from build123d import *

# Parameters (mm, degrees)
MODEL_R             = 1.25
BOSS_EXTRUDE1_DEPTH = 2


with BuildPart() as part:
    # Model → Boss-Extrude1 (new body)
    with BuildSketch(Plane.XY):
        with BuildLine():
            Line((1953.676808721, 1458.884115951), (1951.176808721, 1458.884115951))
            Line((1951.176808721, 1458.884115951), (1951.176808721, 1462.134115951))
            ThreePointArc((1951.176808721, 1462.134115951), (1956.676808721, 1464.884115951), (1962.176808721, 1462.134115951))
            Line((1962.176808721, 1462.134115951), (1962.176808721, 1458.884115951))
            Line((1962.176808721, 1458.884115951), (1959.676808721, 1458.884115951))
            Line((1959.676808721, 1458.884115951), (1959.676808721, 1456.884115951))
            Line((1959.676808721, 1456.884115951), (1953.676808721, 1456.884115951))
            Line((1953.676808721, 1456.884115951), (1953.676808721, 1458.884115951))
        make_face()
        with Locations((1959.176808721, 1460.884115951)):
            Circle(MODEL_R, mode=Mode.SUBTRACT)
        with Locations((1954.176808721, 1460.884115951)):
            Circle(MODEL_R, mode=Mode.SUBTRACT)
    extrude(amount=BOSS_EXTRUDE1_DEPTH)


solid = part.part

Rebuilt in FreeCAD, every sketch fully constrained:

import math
import FreeCAD as App
import Part
import Sketcher
Q = App.Units.Quantity

doc = App.newDocument("Part")
params = doc.addObject("Spreadsheet::Sheet", "Params")
for row, (alias, value) in enumerate([
    ("sketch1_diameter", "2.5 mm"),
    ("sketch1_width", "6 mm"),
    ("sketch1_height", "2 mm"),
    ("sketch1_width2", "2.5 mm"),
    ("sketch1_height2", "3.25 mm"),
    ("pad1_length", "2 mm"),
], start=1):
    params.set(f"A{row}", alias)
    params.set(f"B{row}", "=" + value)
    params.setAlias(f"B{row}", alias)

body = doc.addObject("PartDesign::Body", "Body")

# Sketch on XY plane
sketch1 = doc.addObject("Sketcher::SketchObject", "Sketch")
body.addObject(sketch1)
sketch1.AttachmentSupport = (doc.XY_Plane, [""])
sketch1.MapMode = "FlatFace"
sketch1.addGeometry(Part.LineSegment(App.Vector(1951.2, 1458.9, 0), App.Vector(1953.7, 1458.9, 0)), False)
sketch1.addGeometry(Part.LineSegment(App.Vector(1953.7, 1458.9, 0), App.Vector(1953.7, 1456.9, 0)), False)
sketch1.addGeometry(Part.LineSegment(App.Vector(1953.7, 1456.9, 0), App.Vector(1959.7, 1456.9, 0)), False)
sketch1.addGeometry(Part.LineSegment(App.Vector(1959.7, 1456.9, 0), App.Vector(1959.7, 1458.9, 0)), False)
sketch1.addGeometry(Part.LineSegment(App.Vector(1959.7, 1458.9, 0), App.Vector(1962.2, 1458.9, 0)), False)
sketch1.addGeometry(Part.LineSegment(App.Vector(1962.2, 1458.9, 0), App.Vector(1962.2, 1462.1, 0)), False)
sketch1.addGeometry(Part.ArcOfCircle(Part.Circle(App.Vector(1956.7, 1458, 0), App.Vector(0, 0, 1), 6.9), math.radians(37), math.radians(143)), False)
sketch1.addGeometry(Part.LineSegment(App.Vector(1951.2, 1462.1, 0), App.Vector(1951.2, 1458.9, 0)), False)
sketch1.addGeometry(Part.Circle(App.Vector(1959.2, 1460.9, 0), App.Vector(0, 0, 1), 1.2), False)
sketch1.addGeometry(Part.Circle(App.Vector(1954.2, 1460.9, 0), App.Vector(0, 0, 1), 1.2), False)
sketch1.addConstraint(Sketcher.Constraint("Coincident", 0, 2, 1, 1))
sketch1.addConstraint(Sketcher.Constraint("Coincident", 1, 2, 2, 1))
sketch1.addConstraint(Sketcher.Constraint("Coincident", 2, 2, 3, 1))
sketch1.addConstraint(Sketcher.Constraint("Coincident", 3, 2, 4, 1))
sketch1.addConstraint(Sketcher.Constraint("Coincident", 4, 2, 5, 1))
sketch1.addConstraint(Sketcher.Constraint("Coincident", 5, 2, 6, 1))
sketch1.addConstraint(Sketcher.Constraint("Coincident", 6, 2, 7, 1))
sketch1.addConstraint(Sketcher.Constraint("Coincident", 7, 2, 0, 1))
sketch1.addConstraint(Sketcher.Constraint("Horizontal", 0))
sketch1.addConstraint(Sketcher.Constraint("Vertical", 1))
sketch1.addConstraint(Sketcher.Constraint("Horizontal", 2))
sketch1.addConstraint(Sketcher.Constraint("Vertical", 3))
sketch1.addConstraint(Sketcher.Constraint("Horizontal", 4))
sketch1.addConstraint(Sketcher.Constraint("Vertical", 5))
sketch1.addConstraint(Sketcher.Constraint("Vertical", 7))
sketch1.addConstraint(Sketcher.Constraint("Equal", 8, 9))
sketch1.addConstraint(Sketcher.Constraint("Horizontal", 8, 3, 9, 3))
sketch1.addConstraint(Sketcher.Constraint("Horizontal", 0, 2, 3, 2))
sketch1.addConstraint(Sketcher.Constraint("Horizontal", 5, 2, 6, 2))
sketch1.addConstraint(Sketcher.Constraint("Equal", 0, 4))
sketch1.addConstraint(Sketcher.Constraint("Diameter", 8, Q("2.5 mm")))
sketch1.addConstraint(Sketcher.Constraint("DistanceX", 2, 1, 2, 2, Q("6 mm")))
sketch1.addConstraint(Sketcher.Constraint("DistanceY", 1, 2, 1, 1, Q("2 mm")))
sketch1.addConstraint(Sketcher.Constraint("DistanceX", 0, 1, 0, 2, Q("2.5 mm")))
sketch1.addConstraint(Sketcher.Constraint("Radius", 6, Q("6.875 mm")))
sketch1.addConstraint(Sketcher.Constraint("DistanceX", 9, 3, 8, 3, Q("5 mm")))
sketch1.addConstraint(Sketcher.Constraint("DistanceY", 0, 2, 9, 3, Q("2 mm")))
sketch1.addConstraint(Sketcher.Constraint("DistanceX", 8, 3, 4, 2, Q("3 mm")))
sketch1.addConstraint(Sketcher.Constraint("DistanceY", 5, 1, 5, 2, Q("3.25 mm")))
sketch1.addConstraint(Sketcher.Constraint("DistanceX", -1, 1, 6, 3, Q("1956.676809 mm")))
sketch1.addConstraint(Sketcher.Constraint("DistanceY", -1, 1, 6, 3, Q("1458.009116 mm")))
sketch1.setExpression("Constraints[20]", "Params.sketch1_diameter")
sketch1.setExpression("Constraints[21]", "Params.sketch1_width")
sketch1.setExpression("Constraints[22]", "Params.sketch1_height")
sketch1.setExpression("Constraints[23]", "Params.sketch1_width2")
sketch1.setExpression("Constraints[28]", "Params.sketch1_height2")
pad1 = doc.addObject("PartDesign::Pad", "Pad")
body.addObject(pad1)
pad1.Profile = sketch1
pad1.setExpression("Length", "Params.pad1_length")

doc.recompute()
